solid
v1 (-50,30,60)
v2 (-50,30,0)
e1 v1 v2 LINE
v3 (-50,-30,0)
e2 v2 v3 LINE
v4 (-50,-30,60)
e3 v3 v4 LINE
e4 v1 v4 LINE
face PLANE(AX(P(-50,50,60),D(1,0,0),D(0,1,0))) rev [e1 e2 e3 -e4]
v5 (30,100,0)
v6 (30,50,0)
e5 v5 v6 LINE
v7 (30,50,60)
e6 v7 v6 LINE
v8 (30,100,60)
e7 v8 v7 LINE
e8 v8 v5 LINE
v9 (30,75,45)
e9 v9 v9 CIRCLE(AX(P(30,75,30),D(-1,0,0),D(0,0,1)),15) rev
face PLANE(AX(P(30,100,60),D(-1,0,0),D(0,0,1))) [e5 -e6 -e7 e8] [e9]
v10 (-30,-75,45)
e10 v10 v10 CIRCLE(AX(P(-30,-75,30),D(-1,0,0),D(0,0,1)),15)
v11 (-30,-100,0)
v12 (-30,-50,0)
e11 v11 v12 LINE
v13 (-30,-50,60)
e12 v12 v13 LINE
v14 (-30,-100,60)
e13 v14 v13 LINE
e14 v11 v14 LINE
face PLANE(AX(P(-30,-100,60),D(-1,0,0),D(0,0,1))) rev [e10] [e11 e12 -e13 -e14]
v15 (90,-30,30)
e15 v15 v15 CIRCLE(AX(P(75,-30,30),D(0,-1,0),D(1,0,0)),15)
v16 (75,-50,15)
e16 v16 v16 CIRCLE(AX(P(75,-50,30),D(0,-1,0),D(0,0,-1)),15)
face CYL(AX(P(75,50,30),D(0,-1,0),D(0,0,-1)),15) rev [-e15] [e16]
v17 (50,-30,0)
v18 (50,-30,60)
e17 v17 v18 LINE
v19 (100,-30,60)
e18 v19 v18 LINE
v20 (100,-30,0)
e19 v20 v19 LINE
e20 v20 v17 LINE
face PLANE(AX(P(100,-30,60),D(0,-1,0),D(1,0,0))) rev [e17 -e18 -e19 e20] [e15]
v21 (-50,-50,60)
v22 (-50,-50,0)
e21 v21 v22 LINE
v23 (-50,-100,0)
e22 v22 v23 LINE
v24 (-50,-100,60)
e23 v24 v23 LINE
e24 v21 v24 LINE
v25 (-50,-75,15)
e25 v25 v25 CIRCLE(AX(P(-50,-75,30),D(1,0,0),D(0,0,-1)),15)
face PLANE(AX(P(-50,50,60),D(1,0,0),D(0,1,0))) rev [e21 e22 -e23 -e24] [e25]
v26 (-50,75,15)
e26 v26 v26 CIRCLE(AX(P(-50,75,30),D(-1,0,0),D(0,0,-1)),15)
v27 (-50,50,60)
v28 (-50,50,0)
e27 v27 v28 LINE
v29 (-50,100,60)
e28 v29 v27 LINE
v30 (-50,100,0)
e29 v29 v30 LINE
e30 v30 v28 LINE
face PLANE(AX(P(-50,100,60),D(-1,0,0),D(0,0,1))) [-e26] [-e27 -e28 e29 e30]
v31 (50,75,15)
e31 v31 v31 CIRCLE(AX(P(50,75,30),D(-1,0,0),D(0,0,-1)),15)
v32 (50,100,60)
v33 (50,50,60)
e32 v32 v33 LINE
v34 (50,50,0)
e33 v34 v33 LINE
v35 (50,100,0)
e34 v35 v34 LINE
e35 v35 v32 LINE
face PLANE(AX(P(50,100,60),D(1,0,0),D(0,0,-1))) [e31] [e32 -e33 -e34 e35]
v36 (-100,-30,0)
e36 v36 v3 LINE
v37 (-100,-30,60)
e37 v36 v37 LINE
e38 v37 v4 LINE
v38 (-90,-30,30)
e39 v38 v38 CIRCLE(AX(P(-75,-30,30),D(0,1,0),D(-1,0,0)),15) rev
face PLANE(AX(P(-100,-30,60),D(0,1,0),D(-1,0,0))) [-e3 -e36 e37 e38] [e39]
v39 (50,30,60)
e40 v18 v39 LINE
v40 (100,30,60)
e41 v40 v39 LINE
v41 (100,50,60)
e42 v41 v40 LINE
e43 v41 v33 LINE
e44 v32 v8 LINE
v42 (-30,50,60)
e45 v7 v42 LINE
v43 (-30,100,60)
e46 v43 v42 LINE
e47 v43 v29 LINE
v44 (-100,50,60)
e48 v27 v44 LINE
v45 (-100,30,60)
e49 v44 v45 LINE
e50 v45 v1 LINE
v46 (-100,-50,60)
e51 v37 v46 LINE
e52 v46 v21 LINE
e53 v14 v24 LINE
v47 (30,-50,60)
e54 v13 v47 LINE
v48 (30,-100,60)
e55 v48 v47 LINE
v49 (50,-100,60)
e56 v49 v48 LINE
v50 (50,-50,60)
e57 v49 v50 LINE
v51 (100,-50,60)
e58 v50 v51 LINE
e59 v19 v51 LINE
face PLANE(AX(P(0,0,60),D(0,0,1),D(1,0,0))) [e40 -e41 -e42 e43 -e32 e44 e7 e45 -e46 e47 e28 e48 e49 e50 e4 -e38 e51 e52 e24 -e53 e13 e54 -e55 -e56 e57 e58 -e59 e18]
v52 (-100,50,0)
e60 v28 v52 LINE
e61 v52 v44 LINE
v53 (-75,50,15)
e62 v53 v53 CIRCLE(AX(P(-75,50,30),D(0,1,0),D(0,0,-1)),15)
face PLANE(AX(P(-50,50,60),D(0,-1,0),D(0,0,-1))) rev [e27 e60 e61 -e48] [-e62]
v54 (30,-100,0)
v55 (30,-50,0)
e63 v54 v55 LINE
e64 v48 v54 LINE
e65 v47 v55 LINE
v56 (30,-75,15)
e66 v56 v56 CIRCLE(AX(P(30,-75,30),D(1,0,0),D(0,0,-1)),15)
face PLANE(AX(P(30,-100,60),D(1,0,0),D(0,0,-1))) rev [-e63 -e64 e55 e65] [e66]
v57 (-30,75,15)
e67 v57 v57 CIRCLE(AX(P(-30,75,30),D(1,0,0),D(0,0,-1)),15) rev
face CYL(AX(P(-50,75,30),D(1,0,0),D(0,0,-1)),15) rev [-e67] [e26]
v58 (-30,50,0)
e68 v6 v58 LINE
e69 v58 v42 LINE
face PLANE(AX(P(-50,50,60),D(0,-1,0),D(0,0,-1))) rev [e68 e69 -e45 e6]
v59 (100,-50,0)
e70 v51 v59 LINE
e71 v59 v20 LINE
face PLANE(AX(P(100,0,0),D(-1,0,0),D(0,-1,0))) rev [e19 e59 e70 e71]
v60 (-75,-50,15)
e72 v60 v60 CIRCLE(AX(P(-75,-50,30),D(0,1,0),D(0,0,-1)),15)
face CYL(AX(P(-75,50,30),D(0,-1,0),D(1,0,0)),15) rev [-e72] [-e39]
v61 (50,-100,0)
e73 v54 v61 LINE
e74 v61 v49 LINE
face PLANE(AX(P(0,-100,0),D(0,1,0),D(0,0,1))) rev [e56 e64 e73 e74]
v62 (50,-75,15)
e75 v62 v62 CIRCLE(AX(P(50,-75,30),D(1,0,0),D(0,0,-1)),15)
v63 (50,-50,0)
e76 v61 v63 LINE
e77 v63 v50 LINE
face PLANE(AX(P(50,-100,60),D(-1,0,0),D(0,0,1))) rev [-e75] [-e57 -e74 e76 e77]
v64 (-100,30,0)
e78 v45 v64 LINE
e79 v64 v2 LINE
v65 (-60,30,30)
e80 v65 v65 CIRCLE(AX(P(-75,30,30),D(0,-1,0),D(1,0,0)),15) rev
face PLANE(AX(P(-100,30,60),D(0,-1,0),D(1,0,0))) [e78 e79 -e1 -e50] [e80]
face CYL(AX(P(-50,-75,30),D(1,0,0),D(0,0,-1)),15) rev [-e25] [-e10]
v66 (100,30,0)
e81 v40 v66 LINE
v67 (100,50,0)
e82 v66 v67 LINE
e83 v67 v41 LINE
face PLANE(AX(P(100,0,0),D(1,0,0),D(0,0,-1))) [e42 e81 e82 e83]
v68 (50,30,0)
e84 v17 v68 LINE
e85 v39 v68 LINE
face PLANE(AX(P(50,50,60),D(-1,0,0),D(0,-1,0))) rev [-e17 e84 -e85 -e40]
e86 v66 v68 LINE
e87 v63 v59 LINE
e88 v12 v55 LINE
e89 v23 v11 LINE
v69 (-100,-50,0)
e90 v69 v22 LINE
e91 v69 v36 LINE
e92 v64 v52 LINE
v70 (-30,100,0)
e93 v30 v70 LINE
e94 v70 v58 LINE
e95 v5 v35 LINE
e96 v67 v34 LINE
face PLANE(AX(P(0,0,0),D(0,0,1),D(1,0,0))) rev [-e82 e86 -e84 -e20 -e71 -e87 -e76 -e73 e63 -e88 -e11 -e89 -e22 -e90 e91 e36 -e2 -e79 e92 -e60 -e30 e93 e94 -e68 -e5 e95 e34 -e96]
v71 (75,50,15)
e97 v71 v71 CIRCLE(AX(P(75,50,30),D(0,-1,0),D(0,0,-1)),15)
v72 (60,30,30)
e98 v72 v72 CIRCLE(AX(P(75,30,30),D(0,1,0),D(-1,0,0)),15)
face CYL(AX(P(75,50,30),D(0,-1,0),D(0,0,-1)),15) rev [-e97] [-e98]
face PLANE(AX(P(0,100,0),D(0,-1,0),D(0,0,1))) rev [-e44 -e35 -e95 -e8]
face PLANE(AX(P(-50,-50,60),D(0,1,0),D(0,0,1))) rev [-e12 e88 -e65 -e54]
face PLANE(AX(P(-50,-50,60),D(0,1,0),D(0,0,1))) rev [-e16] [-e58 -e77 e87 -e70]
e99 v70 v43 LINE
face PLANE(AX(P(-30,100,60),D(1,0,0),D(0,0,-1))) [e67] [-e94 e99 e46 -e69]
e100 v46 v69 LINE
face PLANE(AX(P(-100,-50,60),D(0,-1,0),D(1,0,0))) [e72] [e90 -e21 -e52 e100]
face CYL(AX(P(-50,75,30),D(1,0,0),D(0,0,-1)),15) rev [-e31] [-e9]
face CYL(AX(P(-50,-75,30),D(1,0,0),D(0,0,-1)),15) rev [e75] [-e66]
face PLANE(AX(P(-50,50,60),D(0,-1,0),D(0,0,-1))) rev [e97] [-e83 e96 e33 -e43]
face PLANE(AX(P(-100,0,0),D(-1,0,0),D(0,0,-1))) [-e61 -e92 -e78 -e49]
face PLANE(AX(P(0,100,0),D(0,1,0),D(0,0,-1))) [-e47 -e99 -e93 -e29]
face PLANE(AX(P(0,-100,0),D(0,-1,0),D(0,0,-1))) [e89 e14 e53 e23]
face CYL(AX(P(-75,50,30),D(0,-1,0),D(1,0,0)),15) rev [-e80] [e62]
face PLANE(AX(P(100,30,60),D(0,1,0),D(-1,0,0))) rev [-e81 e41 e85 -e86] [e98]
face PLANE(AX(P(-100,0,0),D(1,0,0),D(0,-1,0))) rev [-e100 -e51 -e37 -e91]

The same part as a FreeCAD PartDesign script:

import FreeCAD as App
import Part
import Sketcher
Q = App.Units.Quantity

doc = App.newDocument("Part")
body = doc.addObject("PartDesign::Body", "Body")

sketch1 = body.newObject("Sketcher::SketchObject", "Sketch")
sketch1.AttachmentSupport = (doc.getObject("XY_Plane"), [""])
sketch1.MapMode = "FlatFace"
sketch1.addGeometry([
    Part.LineSegment(App.Vector(-50, 50, 0), App.Vector(-50, -50, 0)),
    Part.LineSegment(App.Vector(-50, -50, 0), App.Vector(50, -50, 0)),
    Part.LineSegment(App.Vector(50, -50, 0), App.Vector(50, 50, 0)),
    Part.LineSegment(App.Vector(50, 50, 0), App.Vector(-50, 50, 0)),
], False)
sketch1.addConstraint([
    Sketcher.Constraint("Coincident", 0, 2, 1, 1),
    Sketcher.Constraint("Coincident", 1, 2, 2, 1),
    Sketcher.Constraint("Coincident", 2, 2, 3, 1),
    Sketcher.Constraint("Coincident", 3, 2, 0, 1),
    Sketcher.Constraint("Vertical", 0),
    Sketcher.Constraint("Horizontal", 1),
    Sketcher.Constraint("Vertical", 2),
    Sketcher.Constraint("Horizontal", 3),
    Sketcher.Constraint("Symmetric", 0, 2, 2, 2, -1, 1),
    Sketcher.Constraint("Equal", 3, 0),
    Sketcher.Constraint("DistanceX", 1, 1, 1, 2, Q("100 mm")),
])
pad1 = body.newObject("PartDesign::Pad", "Pad")
pad1.Profile = sketch1
pad1.Length = 60

sketch2 = body.newObject("Sketcher::SketchObject", "Sketch001")
sketch2.AttachmentSupport = (doc.getObject("YZ_Plane"), [""])
sketch2.MapMode = "FlatFace"
sketch2.AttachmentOffset = App.Placement(App.Vector(0, 0, 50), App.Rotation())
sketch2.addGeometry([
    Part.LineSegment(App.Vector(50, 60, 0), App.Vector(30, 60, 0)),
    Part.LineSegment(App.Vector(30, 60, 0), App.Vector(30, 0, 0)),
    Part.LineSegment(App.Vector(30, 0, 0), App.Vector(50, 0, 0)),
    Part.LineSegment(App.Vector(50, 0, 0), App.Vector(50, 60, 0)),
    Part.LineSegment(App.Vector(-30, 60, 0), App.Vector(-50, 60, 0)),
    Part.LineSegment(App.Vector(-50, 60, 0), App.Vector(-50, 0, 0)),
    Part.LineSegment(App.Vector(-50, 0, 0), App.Vector(-30, 0, 0)),
    Part.LineSegment(App.Vector(-30, 0, 0), App.Vector(-30, 60, 0)),
], False)
sketch2.addConstraint([
    Sketcher.Constraint("Coincident", 0, 2, 1, 1),
    Sketcher.Constraint("Coincident", 1, 2, 2, 1),
    Sketcher.Constraint("Coincident", 2, 2, 3, 1),
    Sketcher.Constraint("Coincident", 3, 2, 0, 1),
    Sketcher.Constraint("Coincident", 4, 2, 5, 1),
    Sketcher.Constraint("Coincident", 5, 2, 6, 1),
    Sketcher.Constraint("Coincident", 6, 2, 7, 1),
    Sketcher.Constraint("Coincident", 7, 2, 4, 1),
    Sketcher.Constraint("Horizontal", 0),
    Sketcher.Constraint("Vertical", 1),
    Sketcher.Constraint("Horizontal", 2),
    Sketcher.Constraint("Vertical", 3),
    Sketcher.Constraint("Horizontal", 4),
    Sketcher.Constraint("Vertical", 5),
    Sketcher.Constraint("Horizontal", 6),
    Sketcher.Constraint("Vertical", 7),
    Sketcher.Constraint("Symmetric", 2, 2, 5, 2, -1, 1),
    Sketcher.Constraint("Symmetric", 1, 2, 6, 2, -2),
    Sketcher.Constraint("Horizontal", 3, 2, 4, 2),
    Sketcher.Constraint("DistanceX", 0, 2, 0, 1, Q("20 mm")),
    Sketcher.Constraint("DistanceY", 1, 2, 1, 1, Q("60 mm")),
    Sketcher.Constraint("DistanceX", -1, 1, 0, 2, Q("30 mm")),
])
pad2 = body.newObject("PartDesign::Pad", "Pad001")
pad2.Profile = sketch2
pad2.Length = 50

sketch3 = body.newObject("Sketcher::SketchObject", "Sketch002")
sketch3.AttachmentSupport = (doc.getObject("XZ_Plane"), [""])
sketch3.MapMode = "FlatFace"
sketch3.AttachmentOffset = App.Placement(App.Vector(0, 0, 50), App.Rotation())
sketch3.addGeometry([
    Part.LineSegment(App.Vector(-50, 60, 0), App.Vector(-50, 0, 0)),
    Part.LineSegment(App.Vector(-50, 0, 0), App.Vector(-30, 0, 0)),
    Part.LineSegment(App.Vector(-30, 0, 0), App.Vector(-30, 60, 0)),
    Part.LineSegment(App.Vector(-30, 60, 0), App.Vector(-50, 60, 0)),
    Part.LineSegment(App.Vector(30, 60, 0), App.Vector(30, 0, 0)),
    Part.LineSegment(App.Vector(30, 0, 0), App.Vector(50, 0, 0)),
    Part.LineSegment(App.Vector(50, 0, 0), App.Vector(50, 60, 0)),
    Part.LineSegment(App.Vector(50, 60, 0), App.Vector(30, 60, 0)),
], False)
sketch3.addConstraint([
    Sketcher.Constraint("Coincident", 0, 2, 1, 1),
    Sketcher.Constraint("Coincident", 1, 2, 2, 1),
    Sketcher.Constraint("Coincident", 2, 2, 3, 1),
    Sketcher.Constraint("Coincident", 3, 2, 0, 1),
    Sketcher.Constraint("Coincident", 4, 2, 5, 1),
    Sketcher.Constraint("Coincident", 5, 2, 6, 1),
    Sketcher.Constraint("Coincident", 6, 2, 7, 1),
    Sketcher.Constraint("Coincident", 7, 2, 4, 1),
    Sketcher.Constraint("Vertical", 0),
    Sketcher.Constraint("Horizontal", 1),
    Sketcher.Constraint("Vertical", 2),
    Sketcher.Constraint("Horizontal", 3),
    Sketcher.Constraint("Vertical", 4),
    Sketcher.Constraint("Horizontal", 5),
    Sketcher.Constraint("Vertical", 6),
    Sketcher.Constraint("Horizontal", 7),
    Sketcher.Constraint("Symmetric", 1, 2, 4, 2, -1, 1),
    Sketcher.Constraint("Symmetric", 0, 2, 5, 2, -2),
    Sketcher.Constraint("Horizontal", 3, 2, 6, 2),
    Sketcher.Constraint("DistanceX", 1, 1, 1, 2, Q("20 mm")),
    Sketcher.Constraint("DistanceY", 0, 2, 0, 1, Q("60 mm")),
    Sketcher.Constraint("DistanceX", 0, 2, -1, 1, Q("50 mm")),
])
pad3 = body.newObject("PartDesign::Pad", "Pad002")
pad3.Profile = sketch3
pad3.Length = 50

sketch4 = body.newObject("Sketcher::SketchObject", "Sketch003")
sketch4.AttachmentSupport = (doc.getObject("XZ_Plane"), [""])
sketch4.MapMode = "FlatFace"
sketch4.AttachmentOffset = App.Placement(App.Vector(0, 0, 50), App.Rotation())
sketch4.addGeometry(Part.Circle(App.Vector(75, 30, 0), App.Vector(0, 0, 1), 15), False)
sketch4.addConstraint([
    Sketcher.Constraint("Diameter", 0, Q("30 mm")),
    Sketcher.Constraint("DistanceX", -1, 1, 0, 3, Q("75 mm")),
    Sketcher.Constraint("DistanceY", -1, 1, 0, 3, Q("30 mm")),
])
pocket1 = body.newObject("PartDesign::Pocket", "Pocket")
pocket1.Profile = sketch4
pocket1.Length = 100

sketch5 = body.newObject("Sketcher::SketchObject", "Sketch004")
sketch5.AttachmentSupport = (doc.getObject("YZ_Plane"), [""])
sketch5.MapMode = "FlatFace"
sketch5.AttachmentOffset = App.Placement(App.Vector(0, 0, 50), App.Rotation())
sketch5.addGeometry(Part.Circle(App.Vector(-75, 30, 0), App.Vector(0, 0, 1), 15), False)
sketch5.addConstraint([
    Sketcher.Constraint("Diameter", 0, Q("30 mm")),
    Sketcher.Constraint("DistanceX", 0, 3, -1, 1, Q("75 mm")),
    Sketcher.Constraint("DistanceY", -1, 1, 0, 3, Q("30 mm")),
])
pocket2 = body.newObject("PartDesign::Pocket", "Pocket001")
pocket2.Profile = sketch5
pocket2.Length = 100
doc.recompute()

mirrored = body.newObject("PartDesign::Mirrored", "Mirrored")
mirrored.Originals = [pad2, pocket1]
mirrored.MirrorPlane = (doc.getObject("YZ_Plane"), [""])
body.Tip = mirrored
doc.recompute()

mirrored2 = body.newObject("PartDesign::Mirrored", "Mirrored001")
mirrored2.Originals = [pad3, pocket2]
mirrored2.MirrorPlane = (doc.getObject("XZ_Plane"), [""])
body.Tip = mirrored2

doc.recompute()
